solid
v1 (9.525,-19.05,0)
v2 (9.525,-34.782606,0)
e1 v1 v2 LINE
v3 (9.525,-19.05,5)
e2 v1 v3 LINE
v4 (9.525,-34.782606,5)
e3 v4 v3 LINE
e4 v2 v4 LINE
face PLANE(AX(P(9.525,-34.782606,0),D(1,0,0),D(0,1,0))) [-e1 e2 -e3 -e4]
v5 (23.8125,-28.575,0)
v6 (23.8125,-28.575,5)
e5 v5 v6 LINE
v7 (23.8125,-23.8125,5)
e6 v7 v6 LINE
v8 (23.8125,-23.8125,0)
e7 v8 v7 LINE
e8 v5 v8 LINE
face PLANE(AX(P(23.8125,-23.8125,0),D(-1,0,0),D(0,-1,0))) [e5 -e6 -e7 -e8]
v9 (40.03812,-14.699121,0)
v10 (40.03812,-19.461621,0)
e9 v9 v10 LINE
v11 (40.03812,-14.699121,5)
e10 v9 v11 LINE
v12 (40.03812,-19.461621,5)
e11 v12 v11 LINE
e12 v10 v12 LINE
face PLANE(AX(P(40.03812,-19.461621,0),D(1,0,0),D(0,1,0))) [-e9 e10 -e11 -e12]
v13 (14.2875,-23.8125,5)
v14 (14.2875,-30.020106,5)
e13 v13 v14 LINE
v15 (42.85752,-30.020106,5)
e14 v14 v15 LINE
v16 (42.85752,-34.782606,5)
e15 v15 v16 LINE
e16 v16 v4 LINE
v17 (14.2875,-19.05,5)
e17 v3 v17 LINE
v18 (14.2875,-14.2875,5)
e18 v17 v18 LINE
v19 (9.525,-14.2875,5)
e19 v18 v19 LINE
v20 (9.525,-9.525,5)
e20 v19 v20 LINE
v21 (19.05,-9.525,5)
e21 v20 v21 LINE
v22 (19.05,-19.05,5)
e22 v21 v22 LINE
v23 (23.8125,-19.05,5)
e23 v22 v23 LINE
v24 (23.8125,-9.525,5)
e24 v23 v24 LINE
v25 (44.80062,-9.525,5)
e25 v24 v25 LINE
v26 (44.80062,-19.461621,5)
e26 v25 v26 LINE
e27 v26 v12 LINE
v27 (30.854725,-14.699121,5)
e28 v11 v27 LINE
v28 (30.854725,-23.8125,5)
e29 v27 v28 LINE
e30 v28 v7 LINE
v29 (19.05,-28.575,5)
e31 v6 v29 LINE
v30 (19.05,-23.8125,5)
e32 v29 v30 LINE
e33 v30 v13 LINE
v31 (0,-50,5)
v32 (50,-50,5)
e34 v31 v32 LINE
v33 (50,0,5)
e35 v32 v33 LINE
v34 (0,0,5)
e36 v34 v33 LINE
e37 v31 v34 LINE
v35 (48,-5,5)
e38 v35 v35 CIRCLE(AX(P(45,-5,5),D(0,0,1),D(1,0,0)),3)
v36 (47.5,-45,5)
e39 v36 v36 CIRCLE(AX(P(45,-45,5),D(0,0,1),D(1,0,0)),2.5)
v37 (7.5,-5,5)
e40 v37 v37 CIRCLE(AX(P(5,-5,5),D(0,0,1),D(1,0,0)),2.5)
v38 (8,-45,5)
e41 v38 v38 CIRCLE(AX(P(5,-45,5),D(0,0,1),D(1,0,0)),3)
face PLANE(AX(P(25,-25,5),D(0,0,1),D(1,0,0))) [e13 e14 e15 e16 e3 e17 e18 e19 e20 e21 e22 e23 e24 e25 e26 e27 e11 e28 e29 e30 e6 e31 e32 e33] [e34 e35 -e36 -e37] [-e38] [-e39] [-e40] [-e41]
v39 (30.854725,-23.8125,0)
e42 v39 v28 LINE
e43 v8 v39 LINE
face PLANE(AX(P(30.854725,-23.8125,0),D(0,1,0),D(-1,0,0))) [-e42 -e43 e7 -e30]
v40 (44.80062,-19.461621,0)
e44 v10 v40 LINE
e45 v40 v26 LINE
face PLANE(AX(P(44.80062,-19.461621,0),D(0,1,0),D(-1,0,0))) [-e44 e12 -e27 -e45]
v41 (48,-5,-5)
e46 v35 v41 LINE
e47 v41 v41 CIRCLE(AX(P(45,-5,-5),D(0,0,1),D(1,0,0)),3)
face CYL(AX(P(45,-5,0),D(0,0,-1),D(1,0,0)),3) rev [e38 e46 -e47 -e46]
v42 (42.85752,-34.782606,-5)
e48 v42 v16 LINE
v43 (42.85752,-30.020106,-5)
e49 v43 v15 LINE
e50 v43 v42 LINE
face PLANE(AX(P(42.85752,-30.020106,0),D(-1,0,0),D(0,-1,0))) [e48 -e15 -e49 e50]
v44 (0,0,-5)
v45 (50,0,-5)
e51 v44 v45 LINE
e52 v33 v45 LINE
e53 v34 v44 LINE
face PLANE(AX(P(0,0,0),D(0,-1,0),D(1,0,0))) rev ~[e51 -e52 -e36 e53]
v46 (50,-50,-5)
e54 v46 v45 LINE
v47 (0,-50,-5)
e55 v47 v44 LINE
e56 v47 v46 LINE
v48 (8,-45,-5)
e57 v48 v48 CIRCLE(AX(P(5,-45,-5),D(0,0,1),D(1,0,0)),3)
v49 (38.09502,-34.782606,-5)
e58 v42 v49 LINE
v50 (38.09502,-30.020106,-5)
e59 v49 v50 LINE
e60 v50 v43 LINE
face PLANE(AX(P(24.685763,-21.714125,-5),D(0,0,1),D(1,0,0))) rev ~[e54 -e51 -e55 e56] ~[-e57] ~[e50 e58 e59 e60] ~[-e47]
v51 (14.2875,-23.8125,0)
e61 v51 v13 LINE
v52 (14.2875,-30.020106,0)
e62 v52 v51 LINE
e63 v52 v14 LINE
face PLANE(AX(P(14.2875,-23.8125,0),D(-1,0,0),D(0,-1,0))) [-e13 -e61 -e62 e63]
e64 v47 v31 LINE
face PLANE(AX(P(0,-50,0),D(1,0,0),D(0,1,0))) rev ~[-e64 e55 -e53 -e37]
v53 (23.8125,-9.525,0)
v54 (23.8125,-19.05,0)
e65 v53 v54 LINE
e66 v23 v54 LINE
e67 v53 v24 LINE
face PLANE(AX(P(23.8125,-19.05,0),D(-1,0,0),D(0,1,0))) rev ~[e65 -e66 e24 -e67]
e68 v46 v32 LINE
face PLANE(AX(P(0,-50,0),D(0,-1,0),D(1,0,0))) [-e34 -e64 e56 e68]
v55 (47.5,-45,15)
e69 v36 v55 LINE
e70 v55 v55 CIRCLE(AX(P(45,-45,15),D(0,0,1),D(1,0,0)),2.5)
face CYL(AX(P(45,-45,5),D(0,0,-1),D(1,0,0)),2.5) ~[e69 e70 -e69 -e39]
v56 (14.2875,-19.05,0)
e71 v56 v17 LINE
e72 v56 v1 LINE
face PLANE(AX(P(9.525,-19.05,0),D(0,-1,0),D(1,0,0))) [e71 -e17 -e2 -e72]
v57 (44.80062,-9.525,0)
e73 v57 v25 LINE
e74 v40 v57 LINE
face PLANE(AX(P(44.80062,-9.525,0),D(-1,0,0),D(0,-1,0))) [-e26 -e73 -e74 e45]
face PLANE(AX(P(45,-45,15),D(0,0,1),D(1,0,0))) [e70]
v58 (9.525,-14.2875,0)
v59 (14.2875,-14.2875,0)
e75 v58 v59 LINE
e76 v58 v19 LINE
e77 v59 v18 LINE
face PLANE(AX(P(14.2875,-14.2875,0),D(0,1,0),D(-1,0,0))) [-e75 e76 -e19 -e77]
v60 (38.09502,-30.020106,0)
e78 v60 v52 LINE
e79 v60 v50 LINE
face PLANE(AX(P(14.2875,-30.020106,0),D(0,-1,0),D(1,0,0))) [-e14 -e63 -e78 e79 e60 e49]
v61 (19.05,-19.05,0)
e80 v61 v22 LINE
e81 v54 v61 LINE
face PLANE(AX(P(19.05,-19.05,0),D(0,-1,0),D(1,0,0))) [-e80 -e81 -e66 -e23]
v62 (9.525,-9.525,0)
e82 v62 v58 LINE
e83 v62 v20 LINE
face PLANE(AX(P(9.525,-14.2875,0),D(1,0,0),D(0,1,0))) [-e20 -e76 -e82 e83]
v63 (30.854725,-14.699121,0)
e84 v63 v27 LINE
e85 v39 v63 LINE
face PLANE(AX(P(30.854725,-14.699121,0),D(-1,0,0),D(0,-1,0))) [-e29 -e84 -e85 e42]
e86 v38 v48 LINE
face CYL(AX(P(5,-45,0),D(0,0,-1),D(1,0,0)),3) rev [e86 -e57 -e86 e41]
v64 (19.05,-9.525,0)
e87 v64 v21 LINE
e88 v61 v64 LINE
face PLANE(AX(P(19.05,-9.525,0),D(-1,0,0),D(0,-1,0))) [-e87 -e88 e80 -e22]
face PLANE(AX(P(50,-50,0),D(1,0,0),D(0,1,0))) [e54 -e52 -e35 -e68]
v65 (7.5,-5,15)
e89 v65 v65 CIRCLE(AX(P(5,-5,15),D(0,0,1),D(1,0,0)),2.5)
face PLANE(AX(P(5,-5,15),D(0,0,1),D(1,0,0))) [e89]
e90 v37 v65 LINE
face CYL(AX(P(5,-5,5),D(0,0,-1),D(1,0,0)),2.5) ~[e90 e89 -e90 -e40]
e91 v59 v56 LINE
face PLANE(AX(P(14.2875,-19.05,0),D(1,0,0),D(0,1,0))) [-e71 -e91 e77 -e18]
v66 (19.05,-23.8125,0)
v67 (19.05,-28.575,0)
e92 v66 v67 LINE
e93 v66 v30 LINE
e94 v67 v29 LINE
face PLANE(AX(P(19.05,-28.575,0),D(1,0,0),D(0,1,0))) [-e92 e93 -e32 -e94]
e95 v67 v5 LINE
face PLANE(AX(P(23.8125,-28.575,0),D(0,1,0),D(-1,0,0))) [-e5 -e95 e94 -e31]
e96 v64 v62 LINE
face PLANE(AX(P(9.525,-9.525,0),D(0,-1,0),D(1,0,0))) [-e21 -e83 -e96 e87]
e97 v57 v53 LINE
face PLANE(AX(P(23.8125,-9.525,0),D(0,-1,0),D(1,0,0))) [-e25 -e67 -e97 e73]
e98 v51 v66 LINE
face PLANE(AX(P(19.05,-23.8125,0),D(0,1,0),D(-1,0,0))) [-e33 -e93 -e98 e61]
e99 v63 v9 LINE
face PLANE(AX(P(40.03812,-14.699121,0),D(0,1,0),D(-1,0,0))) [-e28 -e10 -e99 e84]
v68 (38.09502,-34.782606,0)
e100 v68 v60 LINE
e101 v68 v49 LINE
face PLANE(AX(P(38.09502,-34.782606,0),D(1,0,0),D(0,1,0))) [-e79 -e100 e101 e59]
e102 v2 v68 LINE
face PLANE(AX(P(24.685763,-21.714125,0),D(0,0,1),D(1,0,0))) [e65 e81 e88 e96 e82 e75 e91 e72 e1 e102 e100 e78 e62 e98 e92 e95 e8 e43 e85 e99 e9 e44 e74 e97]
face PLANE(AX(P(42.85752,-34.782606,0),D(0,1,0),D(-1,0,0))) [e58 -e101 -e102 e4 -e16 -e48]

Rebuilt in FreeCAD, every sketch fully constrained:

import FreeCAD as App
import Part
import Sketcher
from FreeCAD import Vector
Q = App.Units.Quantity


def add_polygon(sketch, points):
    """Adds a closed chain of lines whose ends are joined by coincident constraints."""
    first, n = sketch.GeometryCount, len(points)
    for a, b in zip(points, points[1:] + points[:1]):
        sketch.addGeometry(Part.LineSegment(App.Vector(*a, 0), App.Vector(*b, 0)), False)
    for i in range(n):
        sketch.addConstraint(Sketcher.Constraint("Coincident", first + i, 2, first + (i + 1) % n, 1))

doc = App.newDocument("Part")
body = doc.addObject("PartDesign::Body", "Body")

sketch1 = doc.addObject("Sketcher::SketchObject", "Sketch")
body.addObject(sketch1)
sketch1.AttachmentSupport = (doc.XY_Plane, [""])
sketch1.MapMode = "FlatFace"
add_polygon(sketch1, [(0, 0), (0, -50), (50, -50), (50, 0)])
sketch1.addGeometry(Part.Circle(Vector(5, -45, 0), Vector(0, 0, 1), 3), False)
add_polygon(sketch1, [(14.2875, -23.8125), (14.2875, -30.020106), (42.85752, -30.020106), (42.85752, -34.782606), (9.525, -34.782606), (9.525, -19.05), (14.2875, -19.05), (14.2875, -14.2875), (9.525, -14.2875), (9.525, -9.525), (19.05, -9.525), (19.05, -19.05), (23.8125, -19.05), (23.8125, -9.525), (44.80062, -9.525), (44.80062, -19.461621), (40.03812, -19.461621), (40.03812, -14.699121), (30.854725, -14.699121), (30.854725, -23.8125), (23.8125, -23.8125), (23.8125, -28.575), (19.05, -28.575), (19.05, -23.8125)])
sketch1.addGeometry(Part.Circle(Vector(45, -5, 0), Vector(0, 0, 1), 3), False)
sketch1.addConstraint(Sketcher.Constraint("Vertical", 0))
sketch1.addConstraint(Sketcher.Constraint("Horizontal", 1))
sketch1.addConstraint(Sketcher.Constraint("Vertical", 2))
sketch1.addConstraint(Sketcher.Constraint("Horizontal", 3))
sketch1.addConstraint(Sketcher.Constraint("Vertical", 5))
sketch1.addConstraint(Sketcher.Constraint("Horizontal", 6))
sketch1.addConstraint(Sketcher.Constraint("Vertical", 7))
sketch1.addConstraint(Sketcher.Constraint("Horizontal", 8))
sketch1.addConstraint(Sketcher.Constraint("Vertical", 9))
sketch1.addConstraint(Sketcher.Constraint("Horizontal", 10))
sketch1.addConstraint(Sketcher.Constraint("Vertical", 11))
sketch1.addConstraint(Sketcher.Constraint("Horizontal", 12))
sketch1.addConstraint(Sketcher.Constraint("Vertical", 13))
sketch1.addConstraint(Sketcher.Constraint("Horizontal", 14))
sketch1.addConstraint(Sketcher.Constraint("Vertical", 15))
sketch1.addConstraint(Sketcher.Constraint("Horizontal", 16))
sketch1.addConstraint(Sketcher.Constraint("Vertical", 17))
sketch1.addConstraint(Sketcher.Constraint("Horizontal", 18))
sketch1.addConstraint(Sketcher.Constraint("Vertical", 19))
sketch1.addConstraint(Sketcher.Constraint("Horizontal", 20))
sketch1.addConstraint(Sketcher.Constraint("Vertical", 21))
sketch1.addConstraint(Sketcher.Constraint("Horizontal", 22))
sketch1.addConstraint(Sketcher.Constraint("Vertical", 23))
sketch1.addConstraint(Sketcher.Constraint("Horizontal", 24))
sketch1.addConstraint(Sketcher.Constraint("Vertical", 25))
sketch1.addConstraint(Sketcher.Constraint("Horizontal", 26))
sketch1.addConstraint(Sketcher.Constraint("Vertical", 27))
sketch1.addConstraint(Sketcher.Constraint("Horizontal", 28))
sketch1.addConstraint(Sketcher.Constraint("Coincident", 3, 2, -1, 1))
sketch1.addConstraint(Sketcher.Constraint("Equal", 4, 29))
sketch1.addConstraint(Sketcher.Constraint("Horizontal", 10, 2, 15, 2))
sketch1.addConstraint(Sketcher.Constraint("Horizontal", 14, 2, 17, 2))
sketch1.addConstraint(Sketcher.Constraint("Horizontal", 24, 2, 27, 2))
sketch1.addConstraint(Sketcher.Constraint("Vertical", 5, 2, 10, 2))
sketch1.addConstraint(Sketcher.Constraint("Vertical", 9, 2, 12, 2))
sketch1.addConstraint(Sketcher.Constraint("Vertical", 17, 2, 24, 2))
sketch1.addConstraint(Sketcher.Constraint("Vertical", 15, 2, 26, 2))
sketch1.addConstraint(Sketcher.Constraint("Equal", 12, 16))
sketch1.addConstraint(Sketcher.Constraint("Equal", 16, 20))
sketch1.addConstraint(Sketcher.Constraint("Equal", 26, 28))
sketch1.addConstraint(Sketcher.Constraint("Equal", 3, 0))
sketch1.addConstraint(Sketcher.Constraint("Equal", 28, 7))
sketch1.addConstraint(Sketcher.Constraint("Equal", 7, 11))
sketch1.addConstraint(Sketcher.Constraint("Equal", 11, 13))
sketch1.addConstraint(Sketcher.Constraint("Equal", 13, 21))
sketch1.addConstraint(Sketcher.Constraint("Equal", 21, 25))
sketch1.addConstraint(Sketcher.Constraint("Diameter", 4, Q("6 mm")))
sketch1.addConstraint(Sketcher.Constraint("DistanceX", 1, 1, 1, 2, Q("50 mm")))
sketch1.addConstraint(Sketcher.Constraint("DistanceX", -1, 1, 4, 3, Q("5 mm")))
sketch1.addConstraint(Sketcher.Constraint("DistanceY", 4, 3, -1, 1, Q("45 mm")))
sketch1.addConstraint(Sketcher.Constraint("DistanceX", -1, 1, 29, 3, Q("45 mm")))
sketch1.addConstraint(Sketcher.Constraint("DistanceY", 29, 3, -1, 1, Q("5 mm")))
sketch1.addConstraint(Sketcher.Constraint("DistanceX", 14, 1, 14, 2, Q("9.525 mm")))
sketch1.addConstraint(Sketcher.Constraint("DistanceY", 9, 2, -1, 1, Q("19.05 mm")))
sketch1.addConstraint(Sketcher.Constraint("DistanceX", -1, 1, 14, 2, Q("19.05 mm")))
sketch1.addConstraint(Sketcher.Constraint("DistanceY", 25, 2, -1, 1, Q("28.575 mm")))
sketch1.addConstraint(Sketcher.Constraint("DistanceX", 6, 1, 6, 2, Q("28.57002 mm")))
sketch1.addConstraint(Sketcher.Constraint("DistanceX", 18, 1, 18, 2, Q("20.98812 mm")))
sketch1.addConstraint(Sketcher.Constraint("DistanceY", 19, 2, 19, 1, Q("9.936621 mm")))
sketch1.addConstraint(Sketcher.Constraint("DistanceX", 22, 2, 22, 1, Q("9.183395 mm")))
sketch1.addConstraint(Sketcher.Constraint("DistanceY", 5, 2, 5, 1, Q("6.207606 mm")))
pad1 = doc.addObject("PartDesign::Pad", "Pad")
body.addObject(pad1)
pad1.Profile = sketch1
pad1.Length = 10
pad1.Midplane = True

sketch2 = doc.addObject("Sketcher::SketchObject", "Sketch001")
body.addObject(sketch2)
sketch2.AttachmentSupport = (doc.XY_Plane, [""])
sketch2.MapMode = "FlatFace"
add_polygon(sketch2, [(38.09502, -34.782606), (38.09502, -30.020106), (14.2875, -30.020106), (14.2875, -23.8125), (19.05, -23.8125), (19.05, -28.575), (23.8125, -28.575), (23.8125, -23.8125), (30.854725, -23.8125), (30.854725, -14.699121), (40.03812, -14.699121), (40.03812, -19.461621), (44.80062, -19.461621), (44.80062, -9.525), (23.8125, -9.525), (23.8125, -19.05), (19.05, -19.05), (19.05, -9.525), (9.525, -9.525), (9.525, -14.2875), (14.2875, -14.2875), (14.2875, -19.05), (9.525, -19.05), (9.525, -34.782606)])
sketch2.addConstraint(Sketcher.Constraint("Vertical", 0))
sketch2.addConstraint(Sketcher.Constraint("Horizontal", 1))
sketch2.addConstraint(Sketcher.Constraint("Vertical", 2))
sketch2.addConstraint(Sketcher.Constraint("Horizontal", 3))
sketch2.addConstraint(Sketcher.Constraint("Vertical", 4))
sketch2.addConstraint(Sketcher.Constraint("Horizontal", 5))
sketch2.addConstraint(Sketcher.Constraint("Vertical", 6))
sketch2.addConstraint(Sketcher.Constraint("Horizontal", 7))
sketch2.addConstraint(Sketcher.Constraint("Vertical", 8))
sketch2.addConstraint(Sketcher.Constraint("Horizontal", 9))
sketch2.addConstraint(Sketcher.Constraint("Vertical", 10))
sketch2.addConstraint(Sketcher.Constraint("Horizontal", 11))
sketch2.addConstraint(Sketcher.Constraint("Vertical", 12))
sketch2.addConstraint(Sketcher.Constraint("Horizontal", 13))
sketch2.addConstraint(Sketcher.Constraint("Vertical", 14))
sketch2.addConstraint(Sketcher.Constraint("Horizontal", 15))
sketch2.addConstraint(Sketcher.Constraint("Vertical", 16))
sketch2.addConstraint(Sketcher.Constraint("Horizontal", 17))
sketch2.addConstraint(Sketcher.Constraint("Vertical", 18))
sketch2.addConstraint(Sketcher.Constraint("Horizontal", 19))
sketch2.addConstraint(Sketcher.Constraint("Vertical", 20))
sketch2.addConstraint(Sketcher.Constraint("Horizontal", 21))
sketch2.addConstraint(Sketcher.Constraint("Vertical", 22))
sketch2.addConstraint(Sketcher.Constraint("Horizontal", 23))
sketch2.addConstraint(Sketcher.Constraint("Horizontal", 3, 2, 6, 2))
sketch2.addConstraint(Sketcher.Constraint("Horizontal", 13, 2, 16, 2))
sketch2.addConstraint(Sketcher.Constraint("Horizontal", 15, 2, 20, 2))
sketch2.addConstraint(Sketcher.Constraint("Vertical", 6, 2, 13, 2))
sketch2.addConstraint(Sketcher.Constraint("Vertical", 4, 2, 15, 2))
sketch2.addConstraint(Sketcher.Constraint("Vertical", 2, 2, 19, 2))
sketch2.addConstraint(Sketcher.Constraint("Vertical", 18, 2, 21, 2))
sketch2.addConstraint(Sketcher.Constraint("Equal", 3, 5))
sketch2.addConstraint(Sketcher.Constraint("Equal", 5, 11))
sketch2.addConstraint(Sketcher.Constraint("Equal", 15, 19))
sketch2.addConstraint(Sketcher.Constraint("Equal", 21, 0))
sketch2.addConstraint(Sketcher.Constraint("Equal", 0, 4))
sketch2.addConstraint(Sketcher.Constraint("Equal", 6, 10))
sketch2.addConstraint(Sketcher.Constraint("Equal", 17, 14))
sketch2.addConstraint(Sketcher.Constraint("Equal", 10, 18))
sketch2.addConstraint(Sketcher.Constraint("DistanceX", 17, 2, 17, 1, Q("9.525 mm")))
sketch2.addConstraint(Sketcher.Constraint("DistanceX", -1, 1, 3, 2, Q("19.05 mm")))
sketch2.addConstraint(Sketcher.Constraint("DistanceY", 14, 2, -1, 1, Q("19.05 mm")))
sketch2.addConstraint(Sketcher.Constraint("DistanceY", 4, 2, -1, 1, Q("28.575 mm")))
sketch2.addConstraint(Sketcher.Constraint("DistanceX", 1, 2, 1, 1, Q("23.80752 mm")))
sketch2.addConstraint(Sketcher.Constraint("DistanceX", 13, 2, 13, 1, Q("20.98812 mm")))
sketch2.addConstraint(Sketcher.Constraint("DistanceY", 8, 1, 8, 2, Q("9.113379 mm")))
sketch2.addConstraint(Sketcher.Constraint("DistanceX", 7, 1, 7, 2, Q("7.042225 mm")))
sketch2.addConstraint(Sketcher.Constraint("DistanceY", 2, 1, 2, 2, Q("6.207606 mm")))
pad2 = doc.addObject("PartDesign::Pad", "Pad001")
body.addObject(pad2)
pad2.Profile = sketch2
pad2.Length = 5
pad2.Reversed = True

sketch3 = doc.addObject("Sketcher::SketchObject", "Sketch002")
body.addObject(sketch3)
sketch3.AttachmentSupport = (doc.XY_Plane, [""])
sketch3.MapMode = "FlatFace"
sketch3.AttachmentOffset = App.Placement(Vector(0, 0, 5), App.Rotation())
sketch3.addGeometry(Part.Circle(Vector(5, -5, 0), Vector(0, 0, 1), 2.5), False)
sketch3.addGeometry(Part.Circle(Vector(45, -45, 0), Vector(0, 0, 1), 2.5), False)
sketch3.addConstraint(Sketcher.Constraint("Equal", 0, 1))
sketch3.addConstraint(Sketcher.Constraint("Diameter", 0, Q("5 mm")))
sketch3.addConstraint(Sketcher.Constraint("DistanceX", -1, 1, 0, 3, Q("5 mm")))
sketch3.addConstraint(Sketcher.Constraint("DistanceY", 0, 3, -1, 1, Q("5 mm")))
sketch3.addConstraint(Sketcher.Constraint("DistanceX", -1, 1, 1, 3, Q("45 mm")))
sketch3.addConstraint(Sketcher.Constraint("DistanceY", 1, 3, -1, 1, Q("45 mm")))
pad3 = doc.addObject("PartDesign::Pad", "Pad002")
body.addObject(pad3)
pad3.Profile = sketch3
pad3.Length = 10

doc.recompute()
